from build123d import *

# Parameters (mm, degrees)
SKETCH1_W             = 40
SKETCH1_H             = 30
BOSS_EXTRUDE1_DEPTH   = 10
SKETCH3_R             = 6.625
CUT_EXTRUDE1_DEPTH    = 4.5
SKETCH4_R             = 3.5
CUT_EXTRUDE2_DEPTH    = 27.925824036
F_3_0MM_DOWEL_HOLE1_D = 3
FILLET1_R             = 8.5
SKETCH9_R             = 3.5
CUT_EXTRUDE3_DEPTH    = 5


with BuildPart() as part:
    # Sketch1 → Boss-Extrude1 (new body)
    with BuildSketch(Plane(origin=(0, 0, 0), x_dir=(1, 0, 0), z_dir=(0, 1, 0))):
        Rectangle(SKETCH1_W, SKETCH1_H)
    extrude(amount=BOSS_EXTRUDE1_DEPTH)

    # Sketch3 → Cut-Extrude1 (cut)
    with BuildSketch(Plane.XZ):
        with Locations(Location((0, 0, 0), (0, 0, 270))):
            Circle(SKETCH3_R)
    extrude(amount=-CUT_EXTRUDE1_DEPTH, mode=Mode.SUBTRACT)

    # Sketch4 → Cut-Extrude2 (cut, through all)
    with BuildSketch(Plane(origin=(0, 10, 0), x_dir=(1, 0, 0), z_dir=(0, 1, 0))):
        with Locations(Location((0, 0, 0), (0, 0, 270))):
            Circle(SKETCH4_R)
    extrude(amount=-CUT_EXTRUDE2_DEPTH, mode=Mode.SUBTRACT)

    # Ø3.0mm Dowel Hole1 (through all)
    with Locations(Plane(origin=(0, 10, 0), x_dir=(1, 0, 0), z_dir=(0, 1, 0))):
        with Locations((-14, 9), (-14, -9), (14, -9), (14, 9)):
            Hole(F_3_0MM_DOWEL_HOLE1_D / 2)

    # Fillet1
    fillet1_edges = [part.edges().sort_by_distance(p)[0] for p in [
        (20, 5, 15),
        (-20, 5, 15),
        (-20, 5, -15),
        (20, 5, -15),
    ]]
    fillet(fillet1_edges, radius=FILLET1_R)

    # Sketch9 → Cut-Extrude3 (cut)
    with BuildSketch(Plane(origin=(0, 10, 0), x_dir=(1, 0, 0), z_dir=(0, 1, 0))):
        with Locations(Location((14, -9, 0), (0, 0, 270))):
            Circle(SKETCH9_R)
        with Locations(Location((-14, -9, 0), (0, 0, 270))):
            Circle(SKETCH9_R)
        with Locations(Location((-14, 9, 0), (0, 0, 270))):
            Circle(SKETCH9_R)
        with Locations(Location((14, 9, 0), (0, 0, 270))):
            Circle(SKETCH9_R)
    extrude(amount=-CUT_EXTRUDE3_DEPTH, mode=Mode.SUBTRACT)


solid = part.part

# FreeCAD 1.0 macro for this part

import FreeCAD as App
import Part
import Sketcher


def edges_at(feature, points):
    """Names of the edges that pass closest to the given points."""
    edges = feature.Shape.Edges
    near = lambda p: min(range(len(edges)), key=lambda i: edges[i].distToShape(Part.Vertex(*p))[0])
    return sorted({f"Edge{near(p) + 1}" for p in points})


def add_polygon(sketch, points):
    """Adds a closed chain of lines whose ends are joined by coincident constraints."""
    first, n = sketch.GeometryCount, len(points)
    for a, b in zip(points, points[1:] + points[:1]):
        sketch.addGeometry(Part.LineSegment(App.Vector(*a, 0), App.Vector(*b, 0)), False)
    for i in range(n):
        sketch.addConstraint(Sketcher.Constraint("Coincident", first + i, 2, first + (i + 1) % n, 1))

doc = App.newDocument("Part")
body = doc.addObject("PartDesign::Body", "Body")

sketch1 = body.newObject("Sketcher::SketchObject", "Sketch")
sketch1.AttachmentSupport = (doc.getObject("XZ_Plane"), [""])
sketch1.MapMode = "FlatFace"
add_polygon(sketch1, [(-20, -15), (-20, 15), (20, 15), (20, -15)])
sketch1.addConstraint([
    Sketcher.Constraint("Vertical", 0),
    Sketcher.Constraint("Horizontal", 1),
    Sketcher.Constraint("Vertical", 2),
    Sketcher.Constraint("Horizontal", 3),
    Sketcher.Constraint("Symmetric", 0, 2, 2, 2, -1, 1),
    Sketcher.Constraint("DistanceX", 1, 1, 1, 2, 40.0),
    Sketcher.Constraint("DistanceY", 0, 1, 0, 2, 30.0),
])
pad1 = body.newObject("PartDesign::Pad", "Pad")
pad1.Profile = sketch1
pad1.Length = 10
pad1.Reversed = True

sketch2 = body.newObject("Sketcher::SketchObject", "Sketch001")
sketch2.AttachmentSupport = (doc.getObject("XZ_Plane"), [""])
sketch2.MapMode = "FlatFace"
sketch2.addGeometry(Part.Circle(App.Vector(0, 0, 0), App.Vector(0, 0, 1), 6.625), False)
sketch2.addConstraint([
    Sketcher.Constraint("Coincident", 0, 3, -1, 1),
    Sketcher.Constraint("Diameter", 0, 13.25),
])
pocket1 = body.newObject("PartDesign::Pocket", "Pocket")
pocket1.Profile = sketch2
pocket1.Length = 4.5

sketch3 = body.newObject("Sketcher::SketchObject", "Sketch002")
sketch3.AttachmentSupport = (doc.getObject("XZ_Plane"), [""])
sketch3.MapMode = "FlatFace"
sketch3.AttachmentOffset = App.Placement(App.Vector(0, 0, -10), App.Rotation())
sketch3.addGeometry(Part.Circle(App.Vector(0, 0, 0), App.Vector(0, 0, 1), 3.5), False)
sketch3.addConstraint([
    Sketcher.Constraint("Coincident", 0, 3, -1, 1),
    Sketcher.Constraint("Diameter", 0, 7.0),
])
pocket2 = body.newObject("PartDesign::Pocket", "Pocket001")
pocket2.Profile = sketch3
pocket2.Type = "ThroughAll"
pocket2.Reversed = True

sketch4 = body.newObject("Sketcher::SketchObject", "Sketch003")
sketch4.AttachmentSupport = (doc.getObject("XZ_Plane"), [""])
sketch4.MapMode = "FlatFace"
sketch4.AttachmentOffset = App.Placement(App.Vector(0, 0, -10), App.Rotation())
sketch4.addGeometry([
    Part.Circle(App.Vector(-14, -9, 0), App.Vector(0, 0, 1), 1.5),
    Part.Circle(App.Vector(-14, 9, 0), App.Vector(0, 0, 1), 1.5),
    Part.Circle(App.Vector(14, 9, 0), App.Vector(0, 0, 1), 1.5),
    Part.Circle(App.Vector(14, -9, 0), App.Vector(0, 0, 1), 1.5),
], False)
sketch4.addConstraint([
    Sketcher.Constraint("Equal", 0, 1),
    Sketcher.Constraint("Equal", 1, 2),
    Sketcher.Constraint("Equal", 2, 3),
    Sketcher.Constraint("Symmetric", 0, 3, 2, 3, -1, 1),
    Sketcher.Constraint("Symmetric", 1, 3, 3, 3, -1, 1),
    Sketcher.Constraint("Symmetric", 1, 3, 2, 3, -2),
    Sketcher.Constraint("Diameter", 0, 3.0),
    Sketcher.Constraint("DistanceX", 0, 3, -1, 1, 14.0),
    Sketcher.Constraint("DistanceY", 0, 3, -1, 1, 9.0),
])
doc.recompute()
hole = body.newObject("PartDesign::Hole", "Hole")
hole.Profile = sketch4
hole.ThreadType = "None"
hole.Diameter = 3
hole.DepthType = "ThroughAll"
hole.Reversed = True
doc.recompute()

fillet = body.newObject("PartDesign::Fillet", "Fillet")
fillet.Base = (hole, edges_at(hole, [
    (20, 5, 15),
    (-20, 5, 15),
    (-20, 5, -15),
    (20, 5, -15),
]))
fillet.Radius = 8.5

sketch5 = body.newObject("Sketcher::SketchObject", "Sketch004")
sketch5.AttachmentSupport = (doc.getObject("XZ_Plane"), [""])
sketch5.MapMode = "FlatFace"
sketch5.AttachmentOffset = App.Placement(App.Vector(0, 0, -10), App.Rotation())
sketch5.addGeometry([
    Part.Circle(App.Vector(14, 9, 0), App.Vector(0, 0, 1), 3.5),
    Part.Circle(App.Vector(-14, 9, 0), App.Vector(0, 0, 1), 3.5),
    Part.Circle(App.Vector(-14, -9, 0), App.Vector(0, 0, 1), 3.5),
    Part.Circle(App.Vector(14, -9, 0), App.Vector(0, 0, 1), 3.5),
], False)
sketch5.addConstraint([
    Sketcher.Constraint("Equal", 0, 1),
    Sketcher.Constraint("Equal", 1, 2),
    Sketcher.Constraint("Equal", 2, 3),
    Sketcher.Constraint("Symmetric", 0, 3, 2, 3, -1, 1),
    Sketcher.Constraint("Symmetric", 1, 3, 3, 3, -1, 1),
    Sketcher.Constraint("Symmetric", 0, 3, 1, 3, -2),
    Sketcher.Constraint("Diameter", 0, 7.0),
    Sketcher.Constraint("DistanceX", -1, 1, 0, 3, 14.0),
    Sketcher.Constraint("DistanceY", -1, 1, 0, 3, 9.0),
])
pocket3 = body.newObject("PartDesign::Pocket", "Pocket002")
pocket3.Profile = sketch5
pocket3.Length = 5
pocket3.Reversed = True

doc.recompute()
